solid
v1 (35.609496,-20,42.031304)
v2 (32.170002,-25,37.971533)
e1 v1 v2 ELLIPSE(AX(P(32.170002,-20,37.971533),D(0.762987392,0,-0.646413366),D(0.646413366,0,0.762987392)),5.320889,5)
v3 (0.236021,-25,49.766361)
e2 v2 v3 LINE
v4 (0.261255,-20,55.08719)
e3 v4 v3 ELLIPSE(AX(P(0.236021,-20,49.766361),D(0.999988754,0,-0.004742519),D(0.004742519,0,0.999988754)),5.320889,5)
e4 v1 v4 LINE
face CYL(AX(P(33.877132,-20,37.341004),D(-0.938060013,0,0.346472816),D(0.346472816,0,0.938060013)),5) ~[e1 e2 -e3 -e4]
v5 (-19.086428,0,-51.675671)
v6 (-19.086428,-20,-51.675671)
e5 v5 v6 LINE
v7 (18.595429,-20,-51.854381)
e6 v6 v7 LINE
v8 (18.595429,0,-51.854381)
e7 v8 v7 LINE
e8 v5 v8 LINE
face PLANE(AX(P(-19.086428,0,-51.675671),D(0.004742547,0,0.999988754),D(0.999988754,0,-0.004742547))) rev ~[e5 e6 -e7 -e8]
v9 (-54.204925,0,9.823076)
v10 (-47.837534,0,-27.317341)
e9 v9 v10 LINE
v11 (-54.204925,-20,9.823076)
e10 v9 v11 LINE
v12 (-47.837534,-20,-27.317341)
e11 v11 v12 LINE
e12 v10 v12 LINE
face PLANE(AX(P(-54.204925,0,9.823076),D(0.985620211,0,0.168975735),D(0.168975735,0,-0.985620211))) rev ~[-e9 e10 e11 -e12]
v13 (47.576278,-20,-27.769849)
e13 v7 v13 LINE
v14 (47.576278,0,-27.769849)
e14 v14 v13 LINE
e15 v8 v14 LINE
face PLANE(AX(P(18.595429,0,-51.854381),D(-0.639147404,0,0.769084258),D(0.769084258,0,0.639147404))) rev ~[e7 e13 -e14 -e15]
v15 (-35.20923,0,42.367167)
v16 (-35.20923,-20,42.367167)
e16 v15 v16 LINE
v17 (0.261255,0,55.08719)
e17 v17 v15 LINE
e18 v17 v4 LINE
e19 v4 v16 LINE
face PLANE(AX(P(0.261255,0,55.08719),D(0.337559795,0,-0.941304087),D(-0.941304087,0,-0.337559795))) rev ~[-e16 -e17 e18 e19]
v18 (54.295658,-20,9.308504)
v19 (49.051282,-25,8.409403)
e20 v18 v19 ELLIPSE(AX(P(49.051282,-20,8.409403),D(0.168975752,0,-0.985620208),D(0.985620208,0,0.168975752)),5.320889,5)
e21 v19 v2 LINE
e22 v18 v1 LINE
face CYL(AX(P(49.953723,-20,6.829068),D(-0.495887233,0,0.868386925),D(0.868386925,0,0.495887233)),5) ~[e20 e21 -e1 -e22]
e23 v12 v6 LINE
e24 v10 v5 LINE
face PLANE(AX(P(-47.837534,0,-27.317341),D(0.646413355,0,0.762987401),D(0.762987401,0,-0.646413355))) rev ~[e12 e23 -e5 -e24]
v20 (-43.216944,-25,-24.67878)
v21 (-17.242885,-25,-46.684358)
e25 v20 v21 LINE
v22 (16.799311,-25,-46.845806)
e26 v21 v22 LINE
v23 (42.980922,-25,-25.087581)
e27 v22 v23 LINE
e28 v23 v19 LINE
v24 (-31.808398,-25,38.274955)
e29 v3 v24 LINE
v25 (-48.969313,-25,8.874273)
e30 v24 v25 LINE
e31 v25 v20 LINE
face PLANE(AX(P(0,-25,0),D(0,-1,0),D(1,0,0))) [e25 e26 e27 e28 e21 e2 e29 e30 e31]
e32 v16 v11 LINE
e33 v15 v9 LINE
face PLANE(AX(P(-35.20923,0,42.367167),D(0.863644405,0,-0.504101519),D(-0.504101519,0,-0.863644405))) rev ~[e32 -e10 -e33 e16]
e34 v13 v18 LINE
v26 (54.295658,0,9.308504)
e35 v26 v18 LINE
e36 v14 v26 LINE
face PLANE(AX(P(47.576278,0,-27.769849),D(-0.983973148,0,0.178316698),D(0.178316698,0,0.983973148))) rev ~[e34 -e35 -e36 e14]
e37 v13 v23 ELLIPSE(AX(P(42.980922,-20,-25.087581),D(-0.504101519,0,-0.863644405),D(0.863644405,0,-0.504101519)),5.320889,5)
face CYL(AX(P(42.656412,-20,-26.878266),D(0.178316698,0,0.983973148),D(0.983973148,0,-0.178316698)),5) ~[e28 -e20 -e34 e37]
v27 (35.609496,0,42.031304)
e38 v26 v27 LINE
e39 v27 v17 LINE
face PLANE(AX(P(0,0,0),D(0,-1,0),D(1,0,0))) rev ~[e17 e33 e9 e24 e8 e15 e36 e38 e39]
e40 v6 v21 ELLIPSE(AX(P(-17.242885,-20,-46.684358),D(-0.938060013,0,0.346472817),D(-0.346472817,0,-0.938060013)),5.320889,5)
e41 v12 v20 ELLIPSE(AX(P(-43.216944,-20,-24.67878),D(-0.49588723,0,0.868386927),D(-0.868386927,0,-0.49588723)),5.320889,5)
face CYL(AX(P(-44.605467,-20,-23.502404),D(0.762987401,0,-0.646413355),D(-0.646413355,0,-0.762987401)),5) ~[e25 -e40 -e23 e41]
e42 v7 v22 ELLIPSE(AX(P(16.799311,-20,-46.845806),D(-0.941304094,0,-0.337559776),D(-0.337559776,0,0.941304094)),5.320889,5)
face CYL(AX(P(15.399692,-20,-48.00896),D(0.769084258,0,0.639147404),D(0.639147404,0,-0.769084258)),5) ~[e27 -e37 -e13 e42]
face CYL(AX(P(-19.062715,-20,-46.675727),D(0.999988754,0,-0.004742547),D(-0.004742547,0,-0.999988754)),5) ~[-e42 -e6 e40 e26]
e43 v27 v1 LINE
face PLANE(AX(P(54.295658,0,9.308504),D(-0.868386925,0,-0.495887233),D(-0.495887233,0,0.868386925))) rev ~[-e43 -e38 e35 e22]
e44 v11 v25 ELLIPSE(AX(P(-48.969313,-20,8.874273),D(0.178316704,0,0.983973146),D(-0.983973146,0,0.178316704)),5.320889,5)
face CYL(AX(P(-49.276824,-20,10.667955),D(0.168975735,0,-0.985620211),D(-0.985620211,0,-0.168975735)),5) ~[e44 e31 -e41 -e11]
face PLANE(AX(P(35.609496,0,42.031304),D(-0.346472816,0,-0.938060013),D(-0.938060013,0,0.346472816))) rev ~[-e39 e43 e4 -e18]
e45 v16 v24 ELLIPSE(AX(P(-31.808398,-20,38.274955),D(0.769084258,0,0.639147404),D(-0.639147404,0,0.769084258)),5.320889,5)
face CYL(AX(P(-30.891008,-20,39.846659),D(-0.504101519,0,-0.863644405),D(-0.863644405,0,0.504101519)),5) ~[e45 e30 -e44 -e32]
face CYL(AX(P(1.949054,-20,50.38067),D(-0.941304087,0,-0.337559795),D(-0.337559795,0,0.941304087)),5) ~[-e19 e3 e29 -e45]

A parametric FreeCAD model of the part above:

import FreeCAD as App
import Part
import Sketcher
Q = App.Units.Quantity


def edges_at(feature, points):
    """Names of the edges that pass closest to the given points."""
    edges = feature.Shape.Edges
    near = lambda p: min(range(len(edges)), key=lambda i: edges[i].distToShape(Part.Vertex(*p))[0])
    return sorted({f"Edge{near(p) + 1}" for p in points})

doc = App.newDocument("Part")
body = doc.addObject("PartDesign::Body", "Body")

# Sketch on XZ plane
sketch1 = doc.addObject("Sketcher::SketchObject", "Sketch")
body.addObject(sketch1)
sketch1.AttachmentSupport = (doc.XZ_Plane, [""])
sketch1.MapMode = "FlatFace"
sketch1.addGeometry([
    Part.LineSegment(App.Vector(19, -52, 0), App.Vector(48, -28, 0)),  # 0
    Part.LineSegment(App.Vector(48, -28, 0), App.Vector(54, 9, 0)),  # 1
    Part.LineSegment(App.Vector(54, 9, 0), App.Vector(36, 42, 0)),  # 2
    Part.LineSegment(App.Vector(36, 42, 0), App.Vector(0, 55, 0)),  # 3
    Part.LineSegment(App.Vector(0, 55, 0), App.Vector(-35, 42, 0)),  # 4
    Part.LineSegment(App.Vector(-35, 42, 0), App.Vector(-54, 10, 0)),  # 5
    Part.LineSegment(App.Vector(-54, 10, 0), App.Vector(-48, -27, 0)),  # 6
    Part.LineSegment(App.Vector(-48, -27, 0), App.Vector(-19, -52, 0)),  # 7
    Part.LineSegment(App.Vector(-19, -52, 0), App.Vector(19, -52, 0)),  # 8
], False)
sketch1.addConstraint([
    Sketcher.Constraint("Coincident", 0, 2, 1, 1),
    Sketcher.Constraint("Coincident", 1, 2, 2, 1),
    Sketcher.Constraint("Coincident", 2, 2, 3, 1),
    Sketcher.Constraint("Coincident", 3, 2, 4, 1),
    Sketcher.Constraint("Coincident", 4, 2, 5, 1),
    Sketcher.Constraint("Coincident", 5, 2, 6, 1),
    Sketcher.Constraint("Coincident", 6, 2, 7, 1),
    Sketcher.Constraint("Coincident", 7, 2, 8, 1),
    Sketcher.Constraint("Coincident", 8, 2, 0, 1),
    Sketcher.Constraint("Equal", 0, 1),
    Sketcher.Constraint("Equal", 1, 2),
    Sketcher.Constraint("Equal", 2, 3),
    Sketcher.Constraint("Equal", 3, 4),
    Sketcher.Constraint("Equal", 4, 5),
    Sketcher.Constraint("Equal", 5, 6),
    Sketcher.Constraint("Equal", 6, 7),
    Sketcher.Constraint("Equal", 7, 8),
    Sketcher.Constraint("DistanceY", 1, 2, 2, 2, Q("32.7228 mm")),
    Sketcher.Constraint("DistanceX", 4, 2, 7, 2, Q("16.122802 mm")),
    Sketcher.Constraint("Distance", 0, Q("37.682281 mm")),
    Sketcher.Constraint("DistanceX", -1, 1, 0, 2, Q("47.576278 mm")),
    Sketcher.Constraint("DistanceY", 0, 2, -1, 1, Q("27.769849 mm")),
    Sketcher.Constraint("DistanceX", -1, 1, 1, 2, Q("54.295658 mm")),
    Sketcher.Constraint("DistanceY", -1, 1, 3, 2, Q("55.08719 mm")),
    Sketcher.Constraint("DistanceX", 4, 2, -1, 1, Q("35.20923 mm")),
    Sketcher.Constraint("DistanceY", 6, 2, -1, 1, Q("27.317341 mm")),
    Sketcher.Constraint("DistanceY", 7, 2, -1, 1, Q("51.675671 mm")),
])
pad1 = doc.addObject("PartDesign::Pad", "Pad")
body.addObject(pad1)
pad1.Profile = sketch1
pad1.Length = 25
doc.recompute()

fillet = doc.addObject("PartDesign::Fillet", "Fillet")
body.addObject(fillet)
fillet.Base = (pad1, edges_at(pad1, [
    (33.086, -25, -39.812),
    (50.936, -25, -9.231),
    (44.953, -25, 25.67),
    (17.935, -25, 48.559),
    (-17.474, -25, 48.727),
    (-44.707, -25, 26.095),
    (-51.021, -25, -8.747),
    (-33.462, -25, -39.497),
    (-0.245, -25, -51.765),
]))
fillet.Radius = 5

doc.recompute()
